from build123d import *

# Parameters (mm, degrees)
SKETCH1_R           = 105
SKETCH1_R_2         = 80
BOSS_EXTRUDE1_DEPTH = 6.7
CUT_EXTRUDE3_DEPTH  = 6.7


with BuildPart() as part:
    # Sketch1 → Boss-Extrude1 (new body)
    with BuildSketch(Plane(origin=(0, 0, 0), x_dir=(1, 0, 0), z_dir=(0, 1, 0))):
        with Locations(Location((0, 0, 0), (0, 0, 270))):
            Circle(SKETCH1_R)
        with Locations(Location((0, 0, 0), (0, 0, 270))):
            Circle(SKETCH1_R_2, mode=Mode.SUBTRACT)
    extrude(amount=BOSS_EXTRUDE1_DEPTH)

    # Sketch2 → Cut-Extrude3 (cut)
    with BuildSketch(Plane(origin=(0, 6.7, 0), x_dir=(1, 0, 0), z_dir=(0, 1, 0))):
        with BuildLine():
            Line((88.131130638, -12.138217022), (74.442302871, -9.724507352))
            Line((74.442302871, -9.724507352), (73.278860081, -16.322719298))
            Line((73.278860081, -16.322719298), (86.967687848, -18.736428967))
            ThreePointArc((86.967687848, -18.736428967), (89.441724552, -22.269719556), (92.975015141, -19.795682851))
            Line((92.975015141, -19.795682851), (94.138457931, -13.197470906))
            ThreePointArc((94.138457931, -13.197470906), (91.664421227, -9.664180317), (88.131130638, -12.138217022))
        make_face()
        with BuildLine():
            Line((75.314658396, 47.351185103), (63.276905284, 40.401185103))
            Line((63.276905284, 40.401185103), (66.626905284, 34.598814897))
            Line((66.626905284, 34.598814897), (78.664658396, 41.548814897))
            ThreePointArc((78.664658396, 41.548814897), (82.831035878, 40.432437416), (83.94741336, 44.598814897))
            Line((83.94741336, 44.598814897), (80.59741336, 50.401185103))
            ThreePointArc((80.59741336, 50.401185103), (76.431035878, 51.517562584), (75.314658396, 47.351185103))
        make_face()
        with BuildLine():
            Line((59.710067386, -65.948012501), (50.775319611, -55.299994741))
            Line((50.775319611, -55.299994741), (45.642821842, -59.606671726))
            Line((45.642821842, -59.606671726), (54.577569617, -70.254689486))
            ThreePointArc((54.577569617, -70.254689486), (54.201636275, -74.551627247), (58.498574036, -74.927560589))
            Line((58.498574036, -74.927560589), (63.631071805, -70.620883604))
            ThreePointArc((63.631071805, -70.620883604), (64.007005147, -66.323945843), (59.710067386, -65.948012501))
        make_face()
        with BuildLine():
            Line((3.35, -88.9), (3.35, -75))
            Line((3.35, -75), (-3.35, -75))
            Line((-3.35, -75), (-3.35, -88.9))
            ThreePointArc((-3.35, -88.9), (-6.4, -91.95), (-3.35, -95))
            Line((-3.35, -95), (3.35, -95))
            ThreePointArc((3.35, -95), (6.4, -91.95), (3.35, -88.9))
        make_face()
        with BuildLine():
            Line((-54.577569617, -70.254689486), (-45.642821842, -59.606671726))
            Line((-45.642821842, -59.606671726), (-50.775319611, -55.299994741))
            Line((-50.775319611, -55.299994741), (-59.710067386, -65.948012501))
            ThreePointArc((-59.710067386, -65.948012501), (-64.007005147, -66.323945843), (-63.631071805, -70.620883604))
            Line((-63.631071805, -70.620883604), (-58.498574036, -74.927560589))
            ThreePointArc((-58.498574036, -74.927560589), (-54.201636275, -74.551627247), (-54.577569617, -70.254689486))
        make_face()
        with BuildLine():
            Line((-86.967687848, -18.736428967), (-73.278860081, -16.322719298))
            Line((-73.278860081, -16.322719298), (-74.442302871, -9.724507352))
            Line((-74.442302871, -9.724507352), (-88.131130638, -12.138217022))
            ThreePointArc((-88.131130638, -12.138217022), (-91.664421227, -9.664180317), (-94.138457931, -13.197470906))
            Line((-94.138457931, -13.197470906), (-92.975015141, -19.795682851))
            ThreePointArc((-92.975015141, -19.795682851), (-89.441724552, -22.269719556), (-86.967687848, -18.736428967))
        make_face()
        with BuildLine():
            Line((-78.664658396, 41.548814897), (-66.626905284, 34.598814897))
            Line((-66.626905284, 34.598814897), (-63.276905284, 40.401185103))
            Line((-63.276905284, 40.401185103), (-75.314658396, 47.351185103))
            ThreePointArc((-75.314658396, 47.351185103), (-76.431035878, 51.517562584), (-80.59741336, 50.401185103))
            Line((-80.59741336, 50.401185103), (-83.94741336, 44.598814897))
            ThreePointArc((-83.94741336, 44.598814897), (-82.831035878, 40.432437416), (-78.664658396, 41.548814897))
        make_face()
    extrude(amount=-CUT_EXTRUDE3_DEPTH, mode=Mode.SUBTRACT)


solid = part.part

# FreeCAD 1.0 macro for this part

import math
import FreeCAD as App
import Part
import Sketcher
Q = App.Units.Quantity

doc = App.newDocument("Part")
params = doc.addObject("Spreadsheet::Sheet", "Params")
for row, (alias, value) in enumerate([
    ("sketch1_diameter", "210 mm"),
    ("sketch1_diameter2", "160 mm"),
    ("pad1_length", "6.7 mm"),
    ("sketch2_radius", "3.05 mm"),
    ("sketch2_width", "6.7 mm"),
    ("sketch2_height", "13.9 mm"),
    ("sketch2_length", "13.9 mm"),
    ("sketch2_length2", "6.7 mm"),
    ("pocket1_length", "6.7 mm"),
], start=1):
    params.set(f"A{row}", alias)
    params.set(f"B{row}", "=" + value)
    params.setAlias(f"B{row}", alias)

body = doc.addObject("PartDesign::Body", "Body")

# Sketch on XZ plane
sketch1 = body.newObject("Sketcher::SketchObject", "Sketch")
sketch1.AttachmentSupport = (doc.getObject("XZ_Plane"), [""])
sketch1.MapMode = "FlatFace"
sketch1.addGeometry([
    Part.Circle(App.Vector(0, 0, 0), App.Vector(0, 0, 1), 105),
    Part.Circle(App.Vector(0, 0, 0), App.Vector(0, 0, 1), 80),
], False)
sketch1.addConstraint([
    Sketcher.Constraint("Coincident", 0, 3, -1, 1),
    Sketcher.Constraint("Coincident", 1, 3, -1, 1),
    Sketcher.Constraint("Diameter", 0, Q("210 mm")),
    Sketcher.Constraint("Diameter", 1, Q("160 mm")),
])
sketch1.setExpression("Constraints[2]", "Params.sketch1_diameter")
sketch1.setExpression("Constraints[3]", "Params.sketch1_diameter2")
pad1 = body.newObject("PartDesign::Pad", "Pad")
pad1.Profile = sketch1
pad1.setExpression("Length", "Params.pad1_length")
pad1.Reversed = True

# Sketch on XZ plane
sketch2 = body.newObject("Sketcher::SketchObject", "Sketch001")
sketch2.AttachmentSupport = (doc.getObject("XZ_Plane"), [""])
sketch2.MapMode = "FlatFace"
sketch2.AttachmentOffset = App.Placement(App.Vector(0, 0, -6.7), App.Rotation())
sketch2.addGeometry([
    Part.LineSegment(App.Vector(88.1, 12.1, 0), App.Vector(74.4, 9.7, 0)),  # 0
    Part.LineSegment(App.Vector(74.4, 9.7, 0), App.Vector(73.3, 16.3, 0)),  # 1
    Part.LineSegment(App.Vector(73.3, 16.3, 0), App.Vector(87, 18.7, 0)),  # 2
    Part.ArcOfCircle(Part.Circle(App.Vector(90, 19.3, 0), App.Vector(0, 0, 1), 3), math.radians(10), math.radians(190)),  # 3
    Part.LineSegment(App.Vector(93, 19.8, 0), App.Vector(94.1, 13.2, 0)),  # 4
    Part.ArcOfCircle(Part.Circle(App.Vector(91.1, 12.7, 0), App.Vector(0, 0, 1), 3), math.radians(-170), math.radians(10)),  # 5
    Part.LineSegment(App.Vector(75.3, -47.4, 0), App.Vector(63.3, -40.4, 0)),  # 6
    Part.LineSegment(App.Vector(63.3, -40.4, 0), App.Vector(66.6, -34.6, 0)),  # 7
    Part.LineSegment(App.Vector(66.6, -34.6, 0), App.Vector(78.7, -41.5, 0)),  # 8
    Part.ArcOfCircle(Part.Circle(App.Vector(81.3, -43.1, 0), App.Vector(0, 0, 1), 3), math.radians(-30), math.radians(150)),  # 9
    Part.LineSegment(App.Vector(83.9, -44.6, 0), App.Vector(80.6, -50.4, 0)),  # 10
    Part.ArcOfCircle(Part.Circle(App.Vector(78, -48.9, 0), App.Vector(0, 0, 1), 3), math.radians(150), math.radians(330)),  # 11
    Part.LineSegment(App.Vector(59.7, 65.9, 0), App.Vector(50.8, 55.3, 0)),  # 12
    Part.LineSegment(App.Vector(50.8, 55.3, 0), App.Vector(45.6, 59.6, 0)),  # 13
    Part.LineSegment(App.Vector(45.6, 59.6, 0), App.Vector(54.6, 70.3, 0)),  # 14
    Part.ArcOfCircle(Part.Circle(App.Vector(56.5, 72.6, 0), App.Vector(0, 0, 1), 3), math.radians(50), math.radians(230)),  # 15
    Part.LineSegment(App.Vector(58.5, 74.9, 0), App.Vector(63.6, 70.6, 0)),  # 16
    Part.ArcOfCircle(Part.Circle(App.Vector(61.7, 68.3, 0), App.Vector(0, 0, 1), 3), math.radians(-130), math.radians(50)),  # 17
    Part.LineSegment(App.Vector(3.4, 88.9, 0), App.Vector(3.4, 75, 0)),  # 18
    Part.LineSegment(App.Vector(3.4, 75, 0), App.Vector(-3.4, 75, 0)),  # 19
    Part.LineSegment(App.Vector(-3.4, 75, 0), App.Vector(-3.4, 88.9, 0)),  # 20
    Part.ArcOfCircle(Part.Circle(App.Vector(-3.4, 92, 0), App.Vector(0, 0, 1), 3), math.radians(90), math.radians(270)),  # 21
    Part.LineSegment(App.Vector(-3.4, 95, 0), App.Vector(3.4, 95, 0)),  # 22
    Part.ArcOfCircle(Part.Circle(App.Vector(3.4, 92, 0), App.Vector(0, 0, 1), 3), math.radians(-90), math.radians(90)),  # 23
    Part.LineSegment(App.Vector(-54.6, 70.3, 0), App.Vector(-45.6, 59.6, 0)),  # 24
    Part.LineSegment(App.Vector(-45.6, 59.6, 0), App.Vector(-50.8, 55.3, 0)),  # 25
    Part.LineSegment(App.Vector(-50.8, 55.3, 0), App.Vector(-59.7, 65.9, 0)),  # 26
    Part.ArcOfCircle(Part.Circle(App.Vector(-61.7, 68.3, 0), App.Vector(0, 0, 1), 3), math.radians(130), math.radians(310)),  # 27
    Part.LineSegment(App.Vector(-63.6, 70.6, 0), App.Vector(-58.5, 74.9, 0)),  # 28
    Part.ArcOfCircle(Part.Circle(App.Vector(-56.5, 72.6, 0), App.Vector(0, 0, 1), 3), math.radians(-50), math.radians(130)),  # 29
    Part.LineSegment(App.Vector(-87, 18.7, 0), App.Vector(-73.3, 16.3, 0)),  # 30
    Part.LineSegment(App.Vector(-73.3, 16.3, 0), App.Vector(-74.4, 9.7, 0)),  # 31
    Part.LineSegment(App.Vector(-74.4, 9.7, 0), App.Vector(-88.1, 12.1, 0)),  # 32
    Part.ArcOfCircle(Part.Circle(App.Vector(-91.1, 12.7, 0), App.Vector(0, 0, 1), 3), math.radians(170), math.radians(350)),  # 33
    Part.LineSegment(App.Vector(-94.1, 13.2, 0), App.Vector(-93, 19.8, 0)),  # 34
    Part.ArcOfCircle(Part.Circle(App.Vector(-90, 19.3, 0), App.Vector(0, 0, 1), 3), math.radians(-10), math.radians(170)),  # 35
    Part.LineSegment(App.Vector(-78.7, -41.5, 0), App.Vector(-66.6, -34.6, 0)),  # 36
    Part.LineSegment(App.Vector(-66.6, -34.6, 0), App.Vector(-63.3, -40.4, 0)),  # 37
    Part.LineSegment(App.Vector(-63.3, -40.4, 0), App.Vector(-75.3, -47.4, 0)),  # 38
    Part.ArcOfCircle(Part.Circle(App.Vector(-78, -48.9, 0), App.Vector(0, 0, 1), 3), math.radians(-150), math.radians(30)),  # 39
    Part.LineSegment(App.Vector(-80.6, -50.4, 0), App.Vector(-83.9, -44.6, 0)),  # 40
    Part.ArcOfCircle(Part.Circle(App.Vector(-81.3, -43.1, 0), App.Vector(0, 0, 1), 3), math.radians(30), math.radians(210)),  # 41
], False)
sketch2.addConstraint([
    Sketcher.Constraint("Coincident", 0, 2, 1, 1),
    Sketcher.Constraint("Coincident", 1, 2, 2, 1),
    Sketcher.Constraint("Coincident", 2, 2, 3, 2),
    Sketcher.Constraint("Tangent", 3, 1, 4, 1),
    Sketcher.Constraint("Tangent", 4, 2, 5, 2),
    Sketcher.Constraint("Coincident", 5, 1, 0, 1),
    Sketcher.Constraint("Coincident", 6, 2, 7, 1),
    Sketcher.Constraint("Coincident", 7, 2, 8, 1),
    Sketcher.Constraint("Coincident", 8, 2, 9, 2),
    Sketcher.Constraint("Tangent", 9, 1, 10, 1),
    Sketcher.Constraint("Tangent", 10, 2, 11, 2),
    Sketcher.Constraint("Coincident", 11, 1, 6, 1),
    Sketcher.Constraint("Coincident", 12, 2, 13, 1),
    Sketcher.Constraint("Coincident", 13, 2, 14, 1),
    Sketcher.Constraint("Coincident", 14, 2, 15, 2),
    Sketcher.Constraint("Tangent", 15, 1, 16, 1),
    Sketcher.Constraint("Tangent", 16, 2, 17, 2),
    Sketcher.Constraint("Coincident", 17, 1, 12, 1),
    Sketcher.Constraint("Coincident", 18, 2, 19, 1),
    Sketcher.Constraint("Coincident", 19, 2, 20, 1),
    Sketcher.Constraint("Coincident", 20, 2, 21, 2),
    Sketcher.Constraint("Tangent", 21, 1, 22, 1),
    Sketcher.Constraint("Tangent", 22, 2, 23, 2),
    Sketcher.Constraint("Coincident", 23, 1, 18, 1),
    Sketcher.Constraint("Coincident", 24, 2, 25, 1),
    Sketcher.Constraint("Coincident", 25, 2, 26, 1),
    Sketcher.Constraint("Coincident", 26, 2, 27, 2),
    Sketcher.Constraint("Tangent", 27, 1, 28, 1),
    Sketcher.Constraint("Tangent", 28, 2, 29, 2),
    Sketcher.Constraint("Coincident", 29, 1, 24, 1),
    Sketcher.Constraint("Coincident", 30, 2, 31, 1),
    Sketcher.Constraint("Coincident", 31, 2, 32, 1),
    Sketcher.Constraint("Coincident", 32, 2, 33, 2),
    Sketcher.Constraint("Tangent", 33, 1, 34, 1),
    Sketcher.Constraint("Tangent", 34, 2, 35, 2),
    Sketcher.Constraint("Coincident", 35, 1, 30, 1),
    Sketcher.Constraint("Coincident", 36, 2, 37, 1),
    Sketcher.Constraint("Coincident", 37, 2, 38, 1),
    Sketcher.Constraint("Coincident", 38, 2, 39, 2),
    Sketcher.Constraint("Tangent", 39, 1, 40, 1),
    Sketcher.Constraint("Tangent", 40, 2, 41, 2),
    Sketcher.Constraint("Coincident", 41, 1, 36, 1),
    Sketcher.Constraint("Vertical", 18),
    Sketcher.Constraint("Horizontal", 19),
    Sketcher.Constraint("Vertical", 20),
    Sketcher.Constraint("Horizontal", 22),
    Sketcher.Constraint("Equal", 3, 5),
    Sketcher.Constraint("Equal", 5, 9),
    Sketcher.Constraint("Equal", 9, 11),
    Sketcher.Constraint("Equal", 11, 15),
    Sketcher.Constraint("Equal", 15, 17),
    Sketcher.Constraint("Equal", 17, 21),
    Sketcher.Constraint("Equal", 21, 23),
    Sketcher.Constraint("Equal", 23, 27),
    Sketcher.Constraint("Equal", 27, 29),
    Sketcher.Constraint("Equal", 29, 33),
    Sketcher.Constraint("Equal", 33, 35),
    Sketcher.Constraint("Equal", 35, 39),
    Sketcher.Constraint("Equal", 39, 41),
    Sketcher.Constraint("Symmetric", 17, 3, 27, 3, -2),
    Sketcher.Constraint("Symmetric", 15, 3, 29, 3, -2),
    Sketcher.Constraint("Symmetric", 5, 3, 33, 3, -2),
    Sketcher.Constraint("Symmetric", 3, 3, 35, 3, -2),
    Sketcher.Constraint("Symmetric", 11, 3, 39, 3, -2),
    Sketcher.Constraint("Symmetric", 9, 3, 41, 3, -2),
    Sketcher.Constraint("Symmetric", 13, 2, 24, 2, -2),
    Sketcher.Constraint("Symmetric", 12, 2, 25, 2, -2),
    Sketcher.Constraint("Symmetric", 1, 2, 30, 2, -2),
    Sketcher.Constraint("Symmetric", 0, 2, 31, 2, -2),
    Sketcher.Constraint("Symmetric", 7, 2, 36, 2, -2),
    Sketcher.Constraint("Symmetric", 6, 2, 37, 2, -2),
    Sketcher.Constraint("Perpendicular", 0, 1),
    Sketcher.Constraint("Perpendicular", 1, 2),
    Sketcher.Constraint("Perpendicular", 2, 4),
    Sketcher.Constraint("Perpendicular", 6, 7),
    Sketcher.Constraint("Perpendicular", 7, 8),
    Sketcher.Constraint("Perpendicular", 8, 10),
    Sketcher.Constraint("Perpendicular", 12, 13),
    Sketcher.Constraint("Perpendicular", 13, 14),
    Sketcher.Constraint("Perpendicular", 14, 16),
    Sketcher.Constraint("Perpendicular", 24, 25),
    Sketcher.Constraint("Perpendicular", 25, 26),
    Sketcher.Constraint("Perpendicular", 30, 31),
    Sketcher.Constraint("Perpendicular", 31, 32),
    Sketcher.Constraint("Perpendicular", 36, 37),
    Sketcher.Constraint("Perpendicular", 37, 38),
    Sketcher.Constraint("Vertical", 23, 3, 18, 2),
    Sketcher.Constraint("Vertical", 21, 3, 19, 2),
    Sketcher.Constraint("Equal", 1, 4),
    Sketcher.Constraint("Equal", 2, 6),
    Sketcher.Constraint("Equal", 4, 7),
    Sketcher.Constraint("Equal", 7, 10),
    Sketcher.Constraint("Equal", 8, 12),
    Sketcher.Constraint("Equal", 10, 13),
    Sketcher.Constraint("Equal", 13, 16),
    Sketcher.Constraint("Angle", 0, Q("-170 deg")),
    Sketcher.Constraint("Angle", 6, Q("150 deg")),
    Sketcher.Constraint("Angle", 12, Q("-130 deg")),
    Sketcher.Constraint("Radius", 3, Q("3.05 mm")),
    Sketcher.Constraint("DistanceX", 19, 2, 19, 1, Q("6.7 mm")),
    Sketcher.Constraint("DistanceY", 18, 2, 18, 1, Q("13.9 mm")),
    Sketcher.Constraint("DistanceY", -1, 1, 18, 2, Q("75 mm")),
    Sketcher.Constraint("DistanceY", 9, 1, 7, 2, Q("10 mm")),
    Sketcher.Constraint("Distance", 0, Q("13.9 mm")),
    Sketcher.Constraint("Distance", 1, Q("6.7 mm")),
    Sketcher.Constraint("DistanceX", 21, 3, -1, 1, Q("3.35 mm")),
    Sketcher.Constraint("DistanceX", 14, 2, 17, 3, Q("7.093 mm")),
    Sketcher.Constraint("DistanceX", -1, 1, 3, 3, Q("89.971351 mm")),
    Sketcher.Constraint("DistanceX", -1, 1, 15, 3, Q("56.538072 mm")),
    Sketcher.Constraint("DistanceY", -1, 1, 17, 3, Q("68.284448 mm")),
    Sketcher.Constraint("DistanceX", -1, 1, 1, 2, Q("73.27886 mm")),
    Sketcher.Constraint("DistanceY", -1, 1, 1, 2, Q("16.322719 mm")),
    Sketcher.Constraint("DistanceX", -1, 1, 8, 2, Q("78.664658 mm")),
    Sketcher.Constraint("DistanceY", 9, 3, 5, 3, Q("55.741659 mm")),
])
sketch2.setExpression("Constraints[98]", "Params.sketch2_radius")
sketch2.setExpression("Constraints[99]", "Params.sketch2_width")
sketch2.setExpression("Constraints[100]", "Params.sketch2_height")
sketch2.setExpression("Constraints[103]", "Params.sketch2_length")
sketch2.setExpression("Constraints[104]", "Params.sketch2_length2")
pocket1 = body.newObject("PartDesign::Pocket", "Pocket")
pocket1.Profile = sketch2
pocket1.setExpression("Length", "Params.pocket1_length")
pocket1.Reversed = True

doc.recompute()
